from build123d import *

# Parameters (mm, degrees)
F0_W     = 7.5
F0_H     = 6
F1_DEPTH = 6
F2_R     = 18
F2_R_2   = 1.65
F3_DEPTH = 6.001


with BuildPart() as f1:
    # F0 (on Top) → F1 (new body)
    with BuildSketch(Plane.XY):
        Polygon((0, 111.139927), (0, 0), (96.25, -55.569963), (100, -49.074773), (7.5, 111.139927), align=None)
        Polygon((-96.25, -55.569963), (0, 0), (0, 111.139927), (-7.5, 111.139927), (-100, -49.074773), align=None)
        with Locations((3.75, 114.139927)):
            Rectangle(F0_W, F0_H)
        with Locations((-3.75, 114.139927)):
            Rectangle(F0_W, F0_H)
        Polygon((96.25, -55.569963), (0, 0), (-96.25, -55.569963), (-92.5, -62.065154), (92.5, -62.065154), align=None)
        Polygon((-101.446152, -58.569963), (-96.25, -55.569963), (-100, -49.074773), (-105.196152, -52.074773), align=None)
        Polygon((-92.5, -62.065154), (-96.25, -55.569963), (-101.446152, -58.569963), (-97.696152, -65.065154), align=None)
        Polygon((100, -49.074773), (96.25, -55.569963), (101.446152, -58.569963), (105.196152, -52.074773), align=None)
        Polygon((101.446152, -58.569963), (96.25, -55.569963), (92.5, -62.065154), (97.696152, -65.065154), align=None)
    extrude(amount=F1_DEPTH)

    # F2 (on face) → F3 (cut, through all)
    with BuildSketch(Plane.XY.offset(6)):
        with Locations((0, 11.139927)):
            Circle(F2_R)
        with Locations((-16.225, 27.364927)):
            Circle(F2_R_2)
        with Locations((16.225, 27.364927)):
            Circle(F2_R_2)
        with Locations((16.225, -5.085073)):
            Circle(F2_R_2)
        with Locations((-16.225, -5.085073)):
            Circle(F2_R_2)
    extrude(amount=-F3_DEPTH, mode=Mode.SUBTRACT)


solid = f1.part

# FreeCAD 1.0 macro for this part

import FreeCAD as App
import Part
import Sketcher
Q = App.Units.Quantity

doc = App.newDocument("Part")
params = doc.addObject("Spreadsheet::Sheet", "Params")
for row, (alias, value) in enumerate([
    ("sketch1_width", "15 mm"),
    ("sketch1_width2", "185 mm"),
    ("sketch1_height", "6 mm"),
    ("sketch1_length", "185 mm"),
    ("sketch1_length2", "6 mm"),
    ("pad1_length", "6 mm"),
    ("sketch2_diameter", "36 mm"),
    ("sketch2_diameter2", "3.3 mm"),
], start=1):
    params.set(f"A{row}", alias)
    params.set(f"B{row}", "=" + value)
    params.setAlias(f"B{row}", alias)

body = doc.addObject("PartDesign::Body", "Body")

# Sketch on XY plane
sketch1 = doc.addObject("Sketcher::SketchObject", "Sketch")
body.addObject(sketch1)
sketch1.AttachmentSupport = (doc.XY_Plane, [""])
sketch1.MapMode = "FlatFace"
sketch1.addGeometry([
    Part.LineSegment(App.Vector(100, -49, 0), App.Vector(8, 111, 0)),  # 0
    Part.LineSegment(App.Vector(8, 111, 0), App.Vector(8, 117, 0)),  # 1
    Part.LineSegment(App.Vector(8, 117, 0), App.Vector(-8, 117, 0)),  # 2
    Part.LineSegment(App.Vector(-8, 117, 0), App.Vector(-8, 111, 0)),  # 3
    Part.LineSegment(App.Vector(-8, 111, 0), App.Vector(-100, -49, 0)),  # 4
    Part.LineSegment(App.Vector(-100, -49, 0), App.Vector(-105, -52, 0)),  # 5
    Part.LineSegment(App.Vector(-105, -52, 0), App.Vector(-101, -59, 0)),  # 6
    Part.LineSegment(App.Vector(-101, -59, 0), App.Vector(-98, -65, 0)),  # 7
    Part.LineSegment(App.Vector(-98, -65, 0), App.Vector(-92, -62, 0)),  # 8
    Part.LineSegment(App.Vector(-92, -62, 0), App.Vector(92, -62, 0)),  # 9
    Part.LineSegment(App.Vector(92, -62, 0), App.Vector(98, -65, 0)),  # 10
    Part.LineSegment(App.Vector(98, -65, 0), App.Vector(101, -59, 0)),  # 11
    Part.LineSegment(App.Vector(101, -59, 0), App.Vector(105, -52, 0)),  # 12
    Part.LineSegment(App.Vector(105, -52, 0), App.Vector(100, -49, 0)),  # 13
], False)
sketch1.addConstraint([
    Sketcher.Constraint("Coincident", 0, 2, 1, 1),
    Sketcher.Constraint("Coincident", 1, 2, 2, 1),
    Sketcher.Constraint("Coincident", 2, 2, 3, 1),
    Sketcher.Constraint("Coincident", 3, 2, 4, 1),
    Sketcher.Constraint("Coincident", 4, 2, 5, 1),
    Sketcher.Constraint("Coincident", 5, 2, 6, 1),
    Sketcher.Constraint("Coincident", 6, 2, 7, 1),
    Sketcher.Constraint("Coincident", 7, 2, 8, 1),
    Sketcher.Constraint("Coincident", 8, 2, 9, 1),
    Sketcher.Constraint("Coincident", 9, 2, 10, 1),
    Sketcher.Constraint("Coincident", 10, 2, 11, 1),
    Sketcher.Constraint("Coincident", 11, 2, 12, 1),
    Sketcher.Constraint("Coincident", 12, 2, 13, 1),
    Sketcher.Constraint("Coincident", 13, 2, 0, 1),
    Sketcher.Constraint("Vertical", 1),
    Sketcher.Constraint("Horizontal", 2),
    Sketcher.Constraint("Vertical", 3),
    Sketcher.Constraint("Horizontal", 9),
    Sketcher.Constraint("Symmetric", 0, 2, 3, 2, -2),
    Sketcher.Constraint("Symmetric", 7, 2, 10, 2, -2),
    Sketcher.Constraint("Symmetric", 6, 2, 11, 2, -2),
    Sketcher.Constraint("Symmetric", 5, 2, 12, 2, -2),
    Sketcher.Constraint("Symmetric", 4, 2, 13, 2, -2),
    Sketcher.Constraint("Perpendicular", 0, 5),
    Sketcher.Constraint("Perpendicular", 5, 6),
    Sketcher.Constraint("Parallel", 6, 7),
    Sketcher.Constraint("Perpendicular", 7, 8),
    Sketcher.Constraint("Perpendicular", 4, 10),
    Sketcher.Constraint("Equal", 6, 7),
    Sketcher.Constraint("Equal", 5, 8),
    Sketcher.Constraint("DistanceX", 2, 2, 2, 1, 15.0),
    Sketcher.Constraint("DistanceX", 9, 1, 9, 2, 185.0),
    Sketcher.Constraint("DistanceY", 1, 1, 1, 2, 6.0),
    Sketcher.Constraint("Angle", 0, Q("120 deg")),
    Sketcher.Constraint("Distance", 0, 185.0),
    Sketcher.Constraint("Distance", 5, 6.0),
    Sketcher.Constraint("DistanceY", -1, 1, 0, 2, 111.139927),
])
sketch1.setExpression("Constraints[30]", "Params.sketch1_width")
sketch1.setExpression("Constraints[31]", "Params.sketch1_width2")
sketch1.setExpression("Constraints[32]", "Params.sketch1_height")
sketch1.setExpression("Constraints[34]", "Params.sketch1_length")
sketch1.setExpression("Constraints[35]", "Params.sketch1_length2")
pad1 = doc.addObject("PartDesign::Pad", "Pad")
body.addObject(pad1)
pad1.Profile = sketch1
pad1.setExpression("Length", "Params.pad1_length")

# Sketch on XY plane
sketch2 = doc.addObject("Sketcher::SketchObject", "Sketch001")
body.addObject(sketch2)
sketch2.AttachmentSupport = (doc.XY_Plane, [""])
sketch2.MapMode = "FlatFace"
sketch2.AttachmentOffset = App.Placement(App.Vector(0, 0, 6), App.Rotation())
sketch2.addGeometry([
    Part.Circle(App.Vector(0, 11.1, 0), App.Vector(0, 0, 1), 18),  # 0
    Part.Circle(App.Vector(-16.2, 27.4, 0), App.Vector(0, 0, 1), 1.6),  # 1
    Part.Circle(App.Vector(16.2, 27.4, 0), App.Vector(0, 0, 1), 1.6),  # 2
    Part.Circle(App.Vector(16.2, -5.1, 0), App.Vector(0, 0, 1), 1.6),  # 3
    Part.Circle(App.Vector(-16.2, -5.1, 0), App.Vector(0, 0, 1), 1.6),  # 4
], False)
sketch2.addConstraint([
    Sketcher.Constraint("Equal", 1, 2),
    Sketcher.Constraint("Equal", 2, 3),
    Sketcher.Constraint("Equal", 3, 4),
    Sketcher.Constraint("Symmetric", 1, 3, 2, 3, -2),
    Sketcher.Constraint("Symmetric", 3, 3, 4, 3, -2),
    Sketcher.Constraint("PointOnObject", 0, 3, -2),
    Sketcher.Constraint("Vertical", 2, 3, 3, 3),
    Sketcher.Constraint("Diameter", 0, 36.0),
    Sketcher.Constraint("Diameter", 1, 3.3),
    Sketcher.Constraint("DistanceX", 1, 3, 2, 3, 32.45),
    Sketcher.Constraint("DistanceY", 3, 3, 2, 3, 32.45),
    Sketcher.Constraint("DistanceY", 0, 3, 1, 3, 16.225),
    Sketcher.Constraint("DistanceY", -1, 1, 0, 3, 11.139927),
])
sketch2.setExpression("Constraints[7]", "Params.sketch2_diameter")
sketch2.setExpression("Constraints[8]", "Params.sketch2_diameter2")
pocket1 = doc.addObject("PartDesign::Pocket", "Pocket")
body.addObject(pocket1)
pocket1.Profile = sketch2
pocket1.Type = "ThroughAll"

doc.recompute()
